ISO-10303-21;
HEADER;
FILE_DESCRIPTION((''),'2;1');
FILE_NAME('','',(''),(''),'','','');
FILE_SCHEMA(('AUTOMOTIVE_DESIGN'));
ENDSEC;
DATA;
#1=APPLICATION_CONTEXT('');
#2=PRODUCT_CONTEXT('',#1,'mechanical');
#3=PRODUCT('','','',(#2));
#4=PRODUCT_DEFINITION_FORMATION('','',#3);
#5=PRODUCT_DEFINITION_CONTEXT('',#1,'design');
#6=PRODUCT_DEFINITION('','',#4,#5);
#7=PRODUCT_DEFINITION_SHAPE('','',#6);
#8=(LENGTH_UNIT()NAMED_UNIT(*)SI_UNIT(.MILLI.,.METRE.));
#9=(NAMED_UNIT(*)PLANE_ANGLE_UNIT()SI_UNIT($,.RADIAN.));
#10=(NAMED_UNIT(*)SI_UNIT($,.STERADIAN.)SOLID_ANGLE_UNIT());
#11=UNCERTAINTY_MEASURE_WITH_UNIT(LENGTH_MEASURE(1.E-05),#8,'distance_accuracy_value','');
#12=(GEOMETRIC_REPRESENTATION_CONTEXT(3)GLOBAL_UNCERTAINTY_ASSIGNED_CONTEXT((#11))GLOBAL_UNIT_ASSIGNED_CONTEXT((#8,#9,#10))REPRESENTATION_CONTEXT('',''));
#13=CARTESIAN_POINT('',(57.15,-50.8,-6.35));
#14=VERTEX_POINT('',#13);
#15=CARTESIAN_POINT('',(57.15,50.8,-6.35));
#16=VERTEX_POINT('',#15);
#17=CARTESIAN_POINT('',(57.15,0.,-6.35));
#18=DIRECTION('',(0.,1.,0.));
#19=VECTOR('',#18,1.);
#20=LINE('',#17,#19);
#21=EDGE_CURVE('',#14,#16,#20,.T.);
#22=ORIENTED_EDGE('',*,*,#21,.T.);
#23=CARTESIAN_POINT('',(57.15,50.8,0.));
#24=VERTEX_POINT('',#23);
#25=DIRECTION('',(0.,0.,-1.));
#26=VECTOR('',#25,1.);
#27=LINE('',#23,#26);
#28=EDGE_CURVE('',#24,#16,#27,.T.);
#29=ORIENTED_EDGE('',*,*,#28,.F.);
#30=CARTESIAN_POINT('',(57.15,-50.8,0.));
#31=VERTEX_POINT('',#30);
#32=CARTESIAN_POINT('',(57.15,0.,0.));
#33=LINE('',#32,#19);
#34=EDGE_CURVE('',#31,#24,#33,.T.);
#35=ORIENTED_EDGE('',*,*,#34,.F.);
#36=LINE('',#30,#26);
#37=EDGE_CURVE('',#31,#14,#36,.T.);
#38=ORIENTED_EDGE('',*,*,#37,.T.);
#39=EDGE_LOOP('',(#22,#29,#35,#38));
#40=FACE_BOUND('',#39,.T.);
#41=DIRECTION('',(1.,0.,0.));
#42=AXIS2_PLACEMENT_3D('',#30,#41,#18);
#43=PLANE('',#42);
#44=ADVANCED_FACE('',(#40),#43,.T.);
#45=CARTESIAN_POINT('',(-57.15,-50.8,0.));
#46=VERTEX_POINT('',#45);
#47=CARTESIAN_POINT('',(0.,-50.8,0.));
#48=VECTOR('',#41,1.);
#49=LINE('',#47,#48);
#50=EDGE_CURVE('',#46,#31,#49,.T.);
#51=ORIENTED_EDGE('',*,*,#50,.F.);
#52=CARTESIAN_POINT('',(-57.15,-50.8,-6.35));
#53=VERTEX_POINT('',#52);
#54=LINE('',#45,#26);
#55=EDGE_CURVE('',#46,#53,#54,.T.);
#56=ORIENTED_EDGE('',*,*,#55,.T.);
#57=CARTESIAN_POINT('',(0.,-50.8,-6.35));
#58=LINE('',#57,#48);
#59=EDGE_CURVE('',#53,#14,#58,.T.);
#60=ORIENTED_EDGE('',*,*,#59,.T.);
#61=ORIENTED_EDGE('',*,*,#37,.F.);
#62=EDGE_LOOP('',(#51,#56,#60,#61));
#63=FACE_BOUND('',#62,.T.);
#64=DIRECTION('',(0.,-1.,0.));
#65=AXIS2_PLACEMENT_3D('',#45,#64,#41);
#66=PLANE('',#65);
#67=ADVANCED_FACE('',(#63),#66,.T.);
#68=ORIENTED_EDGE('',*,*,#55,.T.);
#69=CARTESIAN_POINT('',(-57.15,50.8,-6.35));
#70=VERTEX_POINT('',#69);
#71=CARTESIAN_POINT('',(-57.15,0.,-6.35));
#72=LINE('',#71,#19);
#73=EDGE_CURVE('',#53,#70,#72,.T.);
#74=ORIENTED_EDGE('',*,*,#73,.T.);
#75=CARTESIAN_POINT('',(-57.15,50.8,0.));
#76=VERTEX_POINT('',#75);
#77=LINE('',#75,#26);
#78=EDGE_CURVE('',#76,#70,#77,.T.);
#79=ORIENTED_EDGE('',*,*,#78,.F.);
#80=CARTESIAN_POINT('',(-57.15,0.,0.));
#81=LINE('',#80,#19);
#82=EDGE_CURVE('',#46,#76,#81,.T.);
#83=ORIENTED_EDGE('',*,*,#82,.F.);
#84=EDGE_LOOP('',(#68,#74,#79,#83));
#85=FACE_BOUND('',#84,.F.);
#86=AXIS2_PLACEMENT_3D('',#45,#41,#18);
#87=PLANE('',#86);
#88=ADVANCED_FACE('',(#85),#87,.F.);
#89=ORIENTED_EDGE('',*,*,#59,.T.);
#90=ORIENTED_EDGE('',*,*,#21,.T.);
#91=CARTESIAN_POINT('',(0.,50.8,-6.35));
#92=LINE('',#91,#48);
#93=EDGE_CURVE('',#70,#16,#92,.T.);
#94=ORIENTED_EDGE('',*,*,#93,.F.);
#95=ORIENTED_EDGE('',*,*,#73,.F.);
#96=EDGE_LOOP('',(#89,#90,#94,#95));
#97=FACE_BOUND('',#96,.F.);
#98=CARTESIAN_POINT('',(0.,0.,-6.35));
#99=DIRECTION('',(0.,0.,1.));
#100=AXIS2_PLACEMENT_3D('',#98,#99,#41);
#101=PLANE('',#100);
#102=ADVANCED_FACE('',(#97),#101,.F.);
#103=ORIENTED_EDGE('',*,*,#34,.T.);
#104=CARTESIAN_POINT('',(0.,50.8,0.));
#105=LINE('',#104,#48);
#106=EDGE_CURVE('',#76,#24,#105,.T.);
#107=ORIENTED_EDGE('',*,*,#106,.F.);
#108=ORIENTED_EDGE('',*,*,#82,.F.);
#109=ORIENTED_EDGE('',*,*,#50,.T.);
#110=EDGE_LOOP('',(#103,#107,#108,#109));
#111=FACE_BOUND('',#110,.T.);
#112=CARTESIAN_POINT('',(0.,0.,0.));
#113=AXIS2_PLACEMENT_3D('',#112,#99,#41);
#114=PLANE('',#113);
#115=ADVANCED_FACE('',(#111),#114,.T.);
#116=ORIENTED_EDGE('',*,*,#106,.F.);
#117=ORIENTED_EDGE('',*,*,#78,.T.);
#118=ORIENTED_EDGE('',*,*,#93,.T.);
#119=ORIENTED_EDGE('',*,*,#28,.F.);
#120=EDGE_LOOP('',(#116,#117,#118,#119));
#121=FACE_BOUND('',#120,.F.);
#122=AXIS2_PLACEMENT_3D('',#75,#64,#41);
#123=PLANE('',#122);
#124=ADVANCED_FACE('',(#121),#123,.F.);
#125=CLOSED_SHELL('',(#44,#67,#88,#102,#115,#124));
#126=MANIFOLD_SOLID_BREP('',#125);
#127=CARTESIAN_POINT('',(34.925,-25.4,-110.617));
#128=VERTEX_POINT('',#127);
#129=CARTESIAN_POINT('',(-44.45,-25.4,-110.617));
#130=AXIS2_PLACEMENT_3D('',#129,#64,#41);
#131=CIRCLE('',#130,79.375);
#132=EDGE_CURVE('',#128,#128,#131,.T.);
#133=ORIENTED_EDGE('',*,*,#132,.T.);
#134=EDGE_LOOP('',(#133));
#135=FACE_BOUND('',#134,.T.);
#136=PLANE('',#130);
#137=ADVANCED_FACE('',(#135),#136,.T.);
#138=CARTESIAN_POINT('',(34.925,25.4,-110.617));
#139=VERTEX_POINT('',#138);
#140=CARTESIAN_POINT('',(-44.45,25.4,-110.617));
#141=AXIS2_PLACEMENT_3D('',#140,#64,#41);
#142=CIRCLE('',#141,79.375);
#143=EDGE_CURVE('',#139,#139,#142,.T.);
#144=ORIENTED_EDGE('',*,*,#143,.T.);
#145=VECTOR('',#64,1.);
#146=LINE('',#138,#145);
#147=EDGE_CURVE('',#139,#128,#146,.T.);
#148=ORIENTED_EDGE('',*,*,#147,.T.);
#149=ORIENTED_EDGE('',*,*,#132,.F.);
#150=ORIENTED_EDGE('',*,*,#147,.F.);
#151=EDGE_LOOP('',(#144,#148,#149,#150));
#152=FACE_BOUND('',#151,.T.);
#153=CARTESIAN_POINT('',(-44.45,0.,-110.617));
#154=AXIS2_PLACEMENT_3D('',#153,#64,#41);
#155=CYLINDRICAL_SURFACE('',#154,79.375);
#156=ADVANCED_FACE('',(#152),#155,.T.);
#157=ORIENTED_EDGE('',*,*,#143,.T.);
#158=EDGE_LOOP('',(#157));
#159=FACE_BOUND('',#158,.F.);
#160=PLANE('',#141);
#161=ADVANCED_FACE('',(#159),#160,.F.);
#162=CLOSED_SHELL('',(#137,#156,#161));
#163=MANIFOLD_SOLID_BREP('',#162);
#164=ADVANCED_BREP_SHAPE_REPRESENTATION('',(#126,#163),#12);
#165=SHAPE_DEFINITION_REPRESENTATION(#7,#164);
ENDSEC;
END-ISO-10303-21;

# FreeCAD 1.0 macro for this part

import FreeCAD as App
import Part
import Sketcher
Q = App.Units.Quantity

doc = App.newDocument("Part")
body = doc.addObject("PartDesign::Body", "Body")

sketch1 = body.newObject("Sketcher::SketchObject", "Sketch")
sketch1.AttachmentSupport = (doc.getObject("XZ_Plane"), [""])
sketch1.MapMode = "FlatFace"
sketch1.addGeometry(Part.Circle(App.Vector(-44, -111, 0), App.Vector(0, 0, 1), 79), False)
sketch1.addConstraint([
    Sketcher.Constraint("Diameter", 0, Q("6.25 in")),
    Sketcher.Constraint("DistanceX", 0, 3, -1, 1, Q("1.75 in")),
    Sketcher.Constraint("DistanceY", 0, 3, -1, 1, Q("4.355 in")),
])
pad1 = body.newObject("PartDesign::Pad", "Pad")
pad1.Profile = sketch1
pad1.Length = Q("2 in")
pad1.Midplane = True
body2 = doc.addObject("PartDesign::Body", "Body001")

sketch2 = body2.newObject("Sketcher::SketchObject", "Sketch001")
sketch2.AttachmentSupport = (doc.getObject("XY_Plane001"), [""])
sketch2.MapMode = "FlatFace"
sketch2.addGeometry([
    Part.LineSegment(App.Vector(-57, 51, 0), App.Vector(-57, -51, 0)),
    Part.LineSegment(App.Vector(-57, -51, 0), App.Vector(57, -51, 0)),
    Part.LineSegment(App.Vector(57, -51, 0), App.Vector(57, 51, 0)),
    Part.LineSegment(App.Vector(57, 51, 0), App.Vector(-57, 51, 0)),
], False)
sketch2.addConstraint([
    Sketcher.Constraint("Coincident", 0, 2, 1, 1),
    Sketcher.Constraint("Coincident", 1, 2, 2, 1),
    Sketcher.Constraint("Coincident", 2, 2, 3, 1),
    Sketcher.Constraint("Coincident", 3, 2, 0, 1),
    Sketcher.Constraint("Vertical", 0),
    Sketcher.Constraint("Horizontal", 1),
    Sketcher.Constraint("Vertical", 2),
    Sketcher.Constraint("Horizontal", 3),
    Sketcher.Constraint("Symmetric", 0, 2, 2, 2, -1, 1),
    Sketcher.Constraint("DistanceY", 0, 2, 0, 1, Q("4 in")),
    Sketcher.Constraint("DistanceX", 1, 1, 1, 2, Q("4.5 in")),
])
pad2 = body2.newObject("PartDesign::Pad", "Pad001")
pad2.Profile = sketch2
pad2.Length = Q("0.25 in")
pad2.Reversed = True

doc.recompute()
